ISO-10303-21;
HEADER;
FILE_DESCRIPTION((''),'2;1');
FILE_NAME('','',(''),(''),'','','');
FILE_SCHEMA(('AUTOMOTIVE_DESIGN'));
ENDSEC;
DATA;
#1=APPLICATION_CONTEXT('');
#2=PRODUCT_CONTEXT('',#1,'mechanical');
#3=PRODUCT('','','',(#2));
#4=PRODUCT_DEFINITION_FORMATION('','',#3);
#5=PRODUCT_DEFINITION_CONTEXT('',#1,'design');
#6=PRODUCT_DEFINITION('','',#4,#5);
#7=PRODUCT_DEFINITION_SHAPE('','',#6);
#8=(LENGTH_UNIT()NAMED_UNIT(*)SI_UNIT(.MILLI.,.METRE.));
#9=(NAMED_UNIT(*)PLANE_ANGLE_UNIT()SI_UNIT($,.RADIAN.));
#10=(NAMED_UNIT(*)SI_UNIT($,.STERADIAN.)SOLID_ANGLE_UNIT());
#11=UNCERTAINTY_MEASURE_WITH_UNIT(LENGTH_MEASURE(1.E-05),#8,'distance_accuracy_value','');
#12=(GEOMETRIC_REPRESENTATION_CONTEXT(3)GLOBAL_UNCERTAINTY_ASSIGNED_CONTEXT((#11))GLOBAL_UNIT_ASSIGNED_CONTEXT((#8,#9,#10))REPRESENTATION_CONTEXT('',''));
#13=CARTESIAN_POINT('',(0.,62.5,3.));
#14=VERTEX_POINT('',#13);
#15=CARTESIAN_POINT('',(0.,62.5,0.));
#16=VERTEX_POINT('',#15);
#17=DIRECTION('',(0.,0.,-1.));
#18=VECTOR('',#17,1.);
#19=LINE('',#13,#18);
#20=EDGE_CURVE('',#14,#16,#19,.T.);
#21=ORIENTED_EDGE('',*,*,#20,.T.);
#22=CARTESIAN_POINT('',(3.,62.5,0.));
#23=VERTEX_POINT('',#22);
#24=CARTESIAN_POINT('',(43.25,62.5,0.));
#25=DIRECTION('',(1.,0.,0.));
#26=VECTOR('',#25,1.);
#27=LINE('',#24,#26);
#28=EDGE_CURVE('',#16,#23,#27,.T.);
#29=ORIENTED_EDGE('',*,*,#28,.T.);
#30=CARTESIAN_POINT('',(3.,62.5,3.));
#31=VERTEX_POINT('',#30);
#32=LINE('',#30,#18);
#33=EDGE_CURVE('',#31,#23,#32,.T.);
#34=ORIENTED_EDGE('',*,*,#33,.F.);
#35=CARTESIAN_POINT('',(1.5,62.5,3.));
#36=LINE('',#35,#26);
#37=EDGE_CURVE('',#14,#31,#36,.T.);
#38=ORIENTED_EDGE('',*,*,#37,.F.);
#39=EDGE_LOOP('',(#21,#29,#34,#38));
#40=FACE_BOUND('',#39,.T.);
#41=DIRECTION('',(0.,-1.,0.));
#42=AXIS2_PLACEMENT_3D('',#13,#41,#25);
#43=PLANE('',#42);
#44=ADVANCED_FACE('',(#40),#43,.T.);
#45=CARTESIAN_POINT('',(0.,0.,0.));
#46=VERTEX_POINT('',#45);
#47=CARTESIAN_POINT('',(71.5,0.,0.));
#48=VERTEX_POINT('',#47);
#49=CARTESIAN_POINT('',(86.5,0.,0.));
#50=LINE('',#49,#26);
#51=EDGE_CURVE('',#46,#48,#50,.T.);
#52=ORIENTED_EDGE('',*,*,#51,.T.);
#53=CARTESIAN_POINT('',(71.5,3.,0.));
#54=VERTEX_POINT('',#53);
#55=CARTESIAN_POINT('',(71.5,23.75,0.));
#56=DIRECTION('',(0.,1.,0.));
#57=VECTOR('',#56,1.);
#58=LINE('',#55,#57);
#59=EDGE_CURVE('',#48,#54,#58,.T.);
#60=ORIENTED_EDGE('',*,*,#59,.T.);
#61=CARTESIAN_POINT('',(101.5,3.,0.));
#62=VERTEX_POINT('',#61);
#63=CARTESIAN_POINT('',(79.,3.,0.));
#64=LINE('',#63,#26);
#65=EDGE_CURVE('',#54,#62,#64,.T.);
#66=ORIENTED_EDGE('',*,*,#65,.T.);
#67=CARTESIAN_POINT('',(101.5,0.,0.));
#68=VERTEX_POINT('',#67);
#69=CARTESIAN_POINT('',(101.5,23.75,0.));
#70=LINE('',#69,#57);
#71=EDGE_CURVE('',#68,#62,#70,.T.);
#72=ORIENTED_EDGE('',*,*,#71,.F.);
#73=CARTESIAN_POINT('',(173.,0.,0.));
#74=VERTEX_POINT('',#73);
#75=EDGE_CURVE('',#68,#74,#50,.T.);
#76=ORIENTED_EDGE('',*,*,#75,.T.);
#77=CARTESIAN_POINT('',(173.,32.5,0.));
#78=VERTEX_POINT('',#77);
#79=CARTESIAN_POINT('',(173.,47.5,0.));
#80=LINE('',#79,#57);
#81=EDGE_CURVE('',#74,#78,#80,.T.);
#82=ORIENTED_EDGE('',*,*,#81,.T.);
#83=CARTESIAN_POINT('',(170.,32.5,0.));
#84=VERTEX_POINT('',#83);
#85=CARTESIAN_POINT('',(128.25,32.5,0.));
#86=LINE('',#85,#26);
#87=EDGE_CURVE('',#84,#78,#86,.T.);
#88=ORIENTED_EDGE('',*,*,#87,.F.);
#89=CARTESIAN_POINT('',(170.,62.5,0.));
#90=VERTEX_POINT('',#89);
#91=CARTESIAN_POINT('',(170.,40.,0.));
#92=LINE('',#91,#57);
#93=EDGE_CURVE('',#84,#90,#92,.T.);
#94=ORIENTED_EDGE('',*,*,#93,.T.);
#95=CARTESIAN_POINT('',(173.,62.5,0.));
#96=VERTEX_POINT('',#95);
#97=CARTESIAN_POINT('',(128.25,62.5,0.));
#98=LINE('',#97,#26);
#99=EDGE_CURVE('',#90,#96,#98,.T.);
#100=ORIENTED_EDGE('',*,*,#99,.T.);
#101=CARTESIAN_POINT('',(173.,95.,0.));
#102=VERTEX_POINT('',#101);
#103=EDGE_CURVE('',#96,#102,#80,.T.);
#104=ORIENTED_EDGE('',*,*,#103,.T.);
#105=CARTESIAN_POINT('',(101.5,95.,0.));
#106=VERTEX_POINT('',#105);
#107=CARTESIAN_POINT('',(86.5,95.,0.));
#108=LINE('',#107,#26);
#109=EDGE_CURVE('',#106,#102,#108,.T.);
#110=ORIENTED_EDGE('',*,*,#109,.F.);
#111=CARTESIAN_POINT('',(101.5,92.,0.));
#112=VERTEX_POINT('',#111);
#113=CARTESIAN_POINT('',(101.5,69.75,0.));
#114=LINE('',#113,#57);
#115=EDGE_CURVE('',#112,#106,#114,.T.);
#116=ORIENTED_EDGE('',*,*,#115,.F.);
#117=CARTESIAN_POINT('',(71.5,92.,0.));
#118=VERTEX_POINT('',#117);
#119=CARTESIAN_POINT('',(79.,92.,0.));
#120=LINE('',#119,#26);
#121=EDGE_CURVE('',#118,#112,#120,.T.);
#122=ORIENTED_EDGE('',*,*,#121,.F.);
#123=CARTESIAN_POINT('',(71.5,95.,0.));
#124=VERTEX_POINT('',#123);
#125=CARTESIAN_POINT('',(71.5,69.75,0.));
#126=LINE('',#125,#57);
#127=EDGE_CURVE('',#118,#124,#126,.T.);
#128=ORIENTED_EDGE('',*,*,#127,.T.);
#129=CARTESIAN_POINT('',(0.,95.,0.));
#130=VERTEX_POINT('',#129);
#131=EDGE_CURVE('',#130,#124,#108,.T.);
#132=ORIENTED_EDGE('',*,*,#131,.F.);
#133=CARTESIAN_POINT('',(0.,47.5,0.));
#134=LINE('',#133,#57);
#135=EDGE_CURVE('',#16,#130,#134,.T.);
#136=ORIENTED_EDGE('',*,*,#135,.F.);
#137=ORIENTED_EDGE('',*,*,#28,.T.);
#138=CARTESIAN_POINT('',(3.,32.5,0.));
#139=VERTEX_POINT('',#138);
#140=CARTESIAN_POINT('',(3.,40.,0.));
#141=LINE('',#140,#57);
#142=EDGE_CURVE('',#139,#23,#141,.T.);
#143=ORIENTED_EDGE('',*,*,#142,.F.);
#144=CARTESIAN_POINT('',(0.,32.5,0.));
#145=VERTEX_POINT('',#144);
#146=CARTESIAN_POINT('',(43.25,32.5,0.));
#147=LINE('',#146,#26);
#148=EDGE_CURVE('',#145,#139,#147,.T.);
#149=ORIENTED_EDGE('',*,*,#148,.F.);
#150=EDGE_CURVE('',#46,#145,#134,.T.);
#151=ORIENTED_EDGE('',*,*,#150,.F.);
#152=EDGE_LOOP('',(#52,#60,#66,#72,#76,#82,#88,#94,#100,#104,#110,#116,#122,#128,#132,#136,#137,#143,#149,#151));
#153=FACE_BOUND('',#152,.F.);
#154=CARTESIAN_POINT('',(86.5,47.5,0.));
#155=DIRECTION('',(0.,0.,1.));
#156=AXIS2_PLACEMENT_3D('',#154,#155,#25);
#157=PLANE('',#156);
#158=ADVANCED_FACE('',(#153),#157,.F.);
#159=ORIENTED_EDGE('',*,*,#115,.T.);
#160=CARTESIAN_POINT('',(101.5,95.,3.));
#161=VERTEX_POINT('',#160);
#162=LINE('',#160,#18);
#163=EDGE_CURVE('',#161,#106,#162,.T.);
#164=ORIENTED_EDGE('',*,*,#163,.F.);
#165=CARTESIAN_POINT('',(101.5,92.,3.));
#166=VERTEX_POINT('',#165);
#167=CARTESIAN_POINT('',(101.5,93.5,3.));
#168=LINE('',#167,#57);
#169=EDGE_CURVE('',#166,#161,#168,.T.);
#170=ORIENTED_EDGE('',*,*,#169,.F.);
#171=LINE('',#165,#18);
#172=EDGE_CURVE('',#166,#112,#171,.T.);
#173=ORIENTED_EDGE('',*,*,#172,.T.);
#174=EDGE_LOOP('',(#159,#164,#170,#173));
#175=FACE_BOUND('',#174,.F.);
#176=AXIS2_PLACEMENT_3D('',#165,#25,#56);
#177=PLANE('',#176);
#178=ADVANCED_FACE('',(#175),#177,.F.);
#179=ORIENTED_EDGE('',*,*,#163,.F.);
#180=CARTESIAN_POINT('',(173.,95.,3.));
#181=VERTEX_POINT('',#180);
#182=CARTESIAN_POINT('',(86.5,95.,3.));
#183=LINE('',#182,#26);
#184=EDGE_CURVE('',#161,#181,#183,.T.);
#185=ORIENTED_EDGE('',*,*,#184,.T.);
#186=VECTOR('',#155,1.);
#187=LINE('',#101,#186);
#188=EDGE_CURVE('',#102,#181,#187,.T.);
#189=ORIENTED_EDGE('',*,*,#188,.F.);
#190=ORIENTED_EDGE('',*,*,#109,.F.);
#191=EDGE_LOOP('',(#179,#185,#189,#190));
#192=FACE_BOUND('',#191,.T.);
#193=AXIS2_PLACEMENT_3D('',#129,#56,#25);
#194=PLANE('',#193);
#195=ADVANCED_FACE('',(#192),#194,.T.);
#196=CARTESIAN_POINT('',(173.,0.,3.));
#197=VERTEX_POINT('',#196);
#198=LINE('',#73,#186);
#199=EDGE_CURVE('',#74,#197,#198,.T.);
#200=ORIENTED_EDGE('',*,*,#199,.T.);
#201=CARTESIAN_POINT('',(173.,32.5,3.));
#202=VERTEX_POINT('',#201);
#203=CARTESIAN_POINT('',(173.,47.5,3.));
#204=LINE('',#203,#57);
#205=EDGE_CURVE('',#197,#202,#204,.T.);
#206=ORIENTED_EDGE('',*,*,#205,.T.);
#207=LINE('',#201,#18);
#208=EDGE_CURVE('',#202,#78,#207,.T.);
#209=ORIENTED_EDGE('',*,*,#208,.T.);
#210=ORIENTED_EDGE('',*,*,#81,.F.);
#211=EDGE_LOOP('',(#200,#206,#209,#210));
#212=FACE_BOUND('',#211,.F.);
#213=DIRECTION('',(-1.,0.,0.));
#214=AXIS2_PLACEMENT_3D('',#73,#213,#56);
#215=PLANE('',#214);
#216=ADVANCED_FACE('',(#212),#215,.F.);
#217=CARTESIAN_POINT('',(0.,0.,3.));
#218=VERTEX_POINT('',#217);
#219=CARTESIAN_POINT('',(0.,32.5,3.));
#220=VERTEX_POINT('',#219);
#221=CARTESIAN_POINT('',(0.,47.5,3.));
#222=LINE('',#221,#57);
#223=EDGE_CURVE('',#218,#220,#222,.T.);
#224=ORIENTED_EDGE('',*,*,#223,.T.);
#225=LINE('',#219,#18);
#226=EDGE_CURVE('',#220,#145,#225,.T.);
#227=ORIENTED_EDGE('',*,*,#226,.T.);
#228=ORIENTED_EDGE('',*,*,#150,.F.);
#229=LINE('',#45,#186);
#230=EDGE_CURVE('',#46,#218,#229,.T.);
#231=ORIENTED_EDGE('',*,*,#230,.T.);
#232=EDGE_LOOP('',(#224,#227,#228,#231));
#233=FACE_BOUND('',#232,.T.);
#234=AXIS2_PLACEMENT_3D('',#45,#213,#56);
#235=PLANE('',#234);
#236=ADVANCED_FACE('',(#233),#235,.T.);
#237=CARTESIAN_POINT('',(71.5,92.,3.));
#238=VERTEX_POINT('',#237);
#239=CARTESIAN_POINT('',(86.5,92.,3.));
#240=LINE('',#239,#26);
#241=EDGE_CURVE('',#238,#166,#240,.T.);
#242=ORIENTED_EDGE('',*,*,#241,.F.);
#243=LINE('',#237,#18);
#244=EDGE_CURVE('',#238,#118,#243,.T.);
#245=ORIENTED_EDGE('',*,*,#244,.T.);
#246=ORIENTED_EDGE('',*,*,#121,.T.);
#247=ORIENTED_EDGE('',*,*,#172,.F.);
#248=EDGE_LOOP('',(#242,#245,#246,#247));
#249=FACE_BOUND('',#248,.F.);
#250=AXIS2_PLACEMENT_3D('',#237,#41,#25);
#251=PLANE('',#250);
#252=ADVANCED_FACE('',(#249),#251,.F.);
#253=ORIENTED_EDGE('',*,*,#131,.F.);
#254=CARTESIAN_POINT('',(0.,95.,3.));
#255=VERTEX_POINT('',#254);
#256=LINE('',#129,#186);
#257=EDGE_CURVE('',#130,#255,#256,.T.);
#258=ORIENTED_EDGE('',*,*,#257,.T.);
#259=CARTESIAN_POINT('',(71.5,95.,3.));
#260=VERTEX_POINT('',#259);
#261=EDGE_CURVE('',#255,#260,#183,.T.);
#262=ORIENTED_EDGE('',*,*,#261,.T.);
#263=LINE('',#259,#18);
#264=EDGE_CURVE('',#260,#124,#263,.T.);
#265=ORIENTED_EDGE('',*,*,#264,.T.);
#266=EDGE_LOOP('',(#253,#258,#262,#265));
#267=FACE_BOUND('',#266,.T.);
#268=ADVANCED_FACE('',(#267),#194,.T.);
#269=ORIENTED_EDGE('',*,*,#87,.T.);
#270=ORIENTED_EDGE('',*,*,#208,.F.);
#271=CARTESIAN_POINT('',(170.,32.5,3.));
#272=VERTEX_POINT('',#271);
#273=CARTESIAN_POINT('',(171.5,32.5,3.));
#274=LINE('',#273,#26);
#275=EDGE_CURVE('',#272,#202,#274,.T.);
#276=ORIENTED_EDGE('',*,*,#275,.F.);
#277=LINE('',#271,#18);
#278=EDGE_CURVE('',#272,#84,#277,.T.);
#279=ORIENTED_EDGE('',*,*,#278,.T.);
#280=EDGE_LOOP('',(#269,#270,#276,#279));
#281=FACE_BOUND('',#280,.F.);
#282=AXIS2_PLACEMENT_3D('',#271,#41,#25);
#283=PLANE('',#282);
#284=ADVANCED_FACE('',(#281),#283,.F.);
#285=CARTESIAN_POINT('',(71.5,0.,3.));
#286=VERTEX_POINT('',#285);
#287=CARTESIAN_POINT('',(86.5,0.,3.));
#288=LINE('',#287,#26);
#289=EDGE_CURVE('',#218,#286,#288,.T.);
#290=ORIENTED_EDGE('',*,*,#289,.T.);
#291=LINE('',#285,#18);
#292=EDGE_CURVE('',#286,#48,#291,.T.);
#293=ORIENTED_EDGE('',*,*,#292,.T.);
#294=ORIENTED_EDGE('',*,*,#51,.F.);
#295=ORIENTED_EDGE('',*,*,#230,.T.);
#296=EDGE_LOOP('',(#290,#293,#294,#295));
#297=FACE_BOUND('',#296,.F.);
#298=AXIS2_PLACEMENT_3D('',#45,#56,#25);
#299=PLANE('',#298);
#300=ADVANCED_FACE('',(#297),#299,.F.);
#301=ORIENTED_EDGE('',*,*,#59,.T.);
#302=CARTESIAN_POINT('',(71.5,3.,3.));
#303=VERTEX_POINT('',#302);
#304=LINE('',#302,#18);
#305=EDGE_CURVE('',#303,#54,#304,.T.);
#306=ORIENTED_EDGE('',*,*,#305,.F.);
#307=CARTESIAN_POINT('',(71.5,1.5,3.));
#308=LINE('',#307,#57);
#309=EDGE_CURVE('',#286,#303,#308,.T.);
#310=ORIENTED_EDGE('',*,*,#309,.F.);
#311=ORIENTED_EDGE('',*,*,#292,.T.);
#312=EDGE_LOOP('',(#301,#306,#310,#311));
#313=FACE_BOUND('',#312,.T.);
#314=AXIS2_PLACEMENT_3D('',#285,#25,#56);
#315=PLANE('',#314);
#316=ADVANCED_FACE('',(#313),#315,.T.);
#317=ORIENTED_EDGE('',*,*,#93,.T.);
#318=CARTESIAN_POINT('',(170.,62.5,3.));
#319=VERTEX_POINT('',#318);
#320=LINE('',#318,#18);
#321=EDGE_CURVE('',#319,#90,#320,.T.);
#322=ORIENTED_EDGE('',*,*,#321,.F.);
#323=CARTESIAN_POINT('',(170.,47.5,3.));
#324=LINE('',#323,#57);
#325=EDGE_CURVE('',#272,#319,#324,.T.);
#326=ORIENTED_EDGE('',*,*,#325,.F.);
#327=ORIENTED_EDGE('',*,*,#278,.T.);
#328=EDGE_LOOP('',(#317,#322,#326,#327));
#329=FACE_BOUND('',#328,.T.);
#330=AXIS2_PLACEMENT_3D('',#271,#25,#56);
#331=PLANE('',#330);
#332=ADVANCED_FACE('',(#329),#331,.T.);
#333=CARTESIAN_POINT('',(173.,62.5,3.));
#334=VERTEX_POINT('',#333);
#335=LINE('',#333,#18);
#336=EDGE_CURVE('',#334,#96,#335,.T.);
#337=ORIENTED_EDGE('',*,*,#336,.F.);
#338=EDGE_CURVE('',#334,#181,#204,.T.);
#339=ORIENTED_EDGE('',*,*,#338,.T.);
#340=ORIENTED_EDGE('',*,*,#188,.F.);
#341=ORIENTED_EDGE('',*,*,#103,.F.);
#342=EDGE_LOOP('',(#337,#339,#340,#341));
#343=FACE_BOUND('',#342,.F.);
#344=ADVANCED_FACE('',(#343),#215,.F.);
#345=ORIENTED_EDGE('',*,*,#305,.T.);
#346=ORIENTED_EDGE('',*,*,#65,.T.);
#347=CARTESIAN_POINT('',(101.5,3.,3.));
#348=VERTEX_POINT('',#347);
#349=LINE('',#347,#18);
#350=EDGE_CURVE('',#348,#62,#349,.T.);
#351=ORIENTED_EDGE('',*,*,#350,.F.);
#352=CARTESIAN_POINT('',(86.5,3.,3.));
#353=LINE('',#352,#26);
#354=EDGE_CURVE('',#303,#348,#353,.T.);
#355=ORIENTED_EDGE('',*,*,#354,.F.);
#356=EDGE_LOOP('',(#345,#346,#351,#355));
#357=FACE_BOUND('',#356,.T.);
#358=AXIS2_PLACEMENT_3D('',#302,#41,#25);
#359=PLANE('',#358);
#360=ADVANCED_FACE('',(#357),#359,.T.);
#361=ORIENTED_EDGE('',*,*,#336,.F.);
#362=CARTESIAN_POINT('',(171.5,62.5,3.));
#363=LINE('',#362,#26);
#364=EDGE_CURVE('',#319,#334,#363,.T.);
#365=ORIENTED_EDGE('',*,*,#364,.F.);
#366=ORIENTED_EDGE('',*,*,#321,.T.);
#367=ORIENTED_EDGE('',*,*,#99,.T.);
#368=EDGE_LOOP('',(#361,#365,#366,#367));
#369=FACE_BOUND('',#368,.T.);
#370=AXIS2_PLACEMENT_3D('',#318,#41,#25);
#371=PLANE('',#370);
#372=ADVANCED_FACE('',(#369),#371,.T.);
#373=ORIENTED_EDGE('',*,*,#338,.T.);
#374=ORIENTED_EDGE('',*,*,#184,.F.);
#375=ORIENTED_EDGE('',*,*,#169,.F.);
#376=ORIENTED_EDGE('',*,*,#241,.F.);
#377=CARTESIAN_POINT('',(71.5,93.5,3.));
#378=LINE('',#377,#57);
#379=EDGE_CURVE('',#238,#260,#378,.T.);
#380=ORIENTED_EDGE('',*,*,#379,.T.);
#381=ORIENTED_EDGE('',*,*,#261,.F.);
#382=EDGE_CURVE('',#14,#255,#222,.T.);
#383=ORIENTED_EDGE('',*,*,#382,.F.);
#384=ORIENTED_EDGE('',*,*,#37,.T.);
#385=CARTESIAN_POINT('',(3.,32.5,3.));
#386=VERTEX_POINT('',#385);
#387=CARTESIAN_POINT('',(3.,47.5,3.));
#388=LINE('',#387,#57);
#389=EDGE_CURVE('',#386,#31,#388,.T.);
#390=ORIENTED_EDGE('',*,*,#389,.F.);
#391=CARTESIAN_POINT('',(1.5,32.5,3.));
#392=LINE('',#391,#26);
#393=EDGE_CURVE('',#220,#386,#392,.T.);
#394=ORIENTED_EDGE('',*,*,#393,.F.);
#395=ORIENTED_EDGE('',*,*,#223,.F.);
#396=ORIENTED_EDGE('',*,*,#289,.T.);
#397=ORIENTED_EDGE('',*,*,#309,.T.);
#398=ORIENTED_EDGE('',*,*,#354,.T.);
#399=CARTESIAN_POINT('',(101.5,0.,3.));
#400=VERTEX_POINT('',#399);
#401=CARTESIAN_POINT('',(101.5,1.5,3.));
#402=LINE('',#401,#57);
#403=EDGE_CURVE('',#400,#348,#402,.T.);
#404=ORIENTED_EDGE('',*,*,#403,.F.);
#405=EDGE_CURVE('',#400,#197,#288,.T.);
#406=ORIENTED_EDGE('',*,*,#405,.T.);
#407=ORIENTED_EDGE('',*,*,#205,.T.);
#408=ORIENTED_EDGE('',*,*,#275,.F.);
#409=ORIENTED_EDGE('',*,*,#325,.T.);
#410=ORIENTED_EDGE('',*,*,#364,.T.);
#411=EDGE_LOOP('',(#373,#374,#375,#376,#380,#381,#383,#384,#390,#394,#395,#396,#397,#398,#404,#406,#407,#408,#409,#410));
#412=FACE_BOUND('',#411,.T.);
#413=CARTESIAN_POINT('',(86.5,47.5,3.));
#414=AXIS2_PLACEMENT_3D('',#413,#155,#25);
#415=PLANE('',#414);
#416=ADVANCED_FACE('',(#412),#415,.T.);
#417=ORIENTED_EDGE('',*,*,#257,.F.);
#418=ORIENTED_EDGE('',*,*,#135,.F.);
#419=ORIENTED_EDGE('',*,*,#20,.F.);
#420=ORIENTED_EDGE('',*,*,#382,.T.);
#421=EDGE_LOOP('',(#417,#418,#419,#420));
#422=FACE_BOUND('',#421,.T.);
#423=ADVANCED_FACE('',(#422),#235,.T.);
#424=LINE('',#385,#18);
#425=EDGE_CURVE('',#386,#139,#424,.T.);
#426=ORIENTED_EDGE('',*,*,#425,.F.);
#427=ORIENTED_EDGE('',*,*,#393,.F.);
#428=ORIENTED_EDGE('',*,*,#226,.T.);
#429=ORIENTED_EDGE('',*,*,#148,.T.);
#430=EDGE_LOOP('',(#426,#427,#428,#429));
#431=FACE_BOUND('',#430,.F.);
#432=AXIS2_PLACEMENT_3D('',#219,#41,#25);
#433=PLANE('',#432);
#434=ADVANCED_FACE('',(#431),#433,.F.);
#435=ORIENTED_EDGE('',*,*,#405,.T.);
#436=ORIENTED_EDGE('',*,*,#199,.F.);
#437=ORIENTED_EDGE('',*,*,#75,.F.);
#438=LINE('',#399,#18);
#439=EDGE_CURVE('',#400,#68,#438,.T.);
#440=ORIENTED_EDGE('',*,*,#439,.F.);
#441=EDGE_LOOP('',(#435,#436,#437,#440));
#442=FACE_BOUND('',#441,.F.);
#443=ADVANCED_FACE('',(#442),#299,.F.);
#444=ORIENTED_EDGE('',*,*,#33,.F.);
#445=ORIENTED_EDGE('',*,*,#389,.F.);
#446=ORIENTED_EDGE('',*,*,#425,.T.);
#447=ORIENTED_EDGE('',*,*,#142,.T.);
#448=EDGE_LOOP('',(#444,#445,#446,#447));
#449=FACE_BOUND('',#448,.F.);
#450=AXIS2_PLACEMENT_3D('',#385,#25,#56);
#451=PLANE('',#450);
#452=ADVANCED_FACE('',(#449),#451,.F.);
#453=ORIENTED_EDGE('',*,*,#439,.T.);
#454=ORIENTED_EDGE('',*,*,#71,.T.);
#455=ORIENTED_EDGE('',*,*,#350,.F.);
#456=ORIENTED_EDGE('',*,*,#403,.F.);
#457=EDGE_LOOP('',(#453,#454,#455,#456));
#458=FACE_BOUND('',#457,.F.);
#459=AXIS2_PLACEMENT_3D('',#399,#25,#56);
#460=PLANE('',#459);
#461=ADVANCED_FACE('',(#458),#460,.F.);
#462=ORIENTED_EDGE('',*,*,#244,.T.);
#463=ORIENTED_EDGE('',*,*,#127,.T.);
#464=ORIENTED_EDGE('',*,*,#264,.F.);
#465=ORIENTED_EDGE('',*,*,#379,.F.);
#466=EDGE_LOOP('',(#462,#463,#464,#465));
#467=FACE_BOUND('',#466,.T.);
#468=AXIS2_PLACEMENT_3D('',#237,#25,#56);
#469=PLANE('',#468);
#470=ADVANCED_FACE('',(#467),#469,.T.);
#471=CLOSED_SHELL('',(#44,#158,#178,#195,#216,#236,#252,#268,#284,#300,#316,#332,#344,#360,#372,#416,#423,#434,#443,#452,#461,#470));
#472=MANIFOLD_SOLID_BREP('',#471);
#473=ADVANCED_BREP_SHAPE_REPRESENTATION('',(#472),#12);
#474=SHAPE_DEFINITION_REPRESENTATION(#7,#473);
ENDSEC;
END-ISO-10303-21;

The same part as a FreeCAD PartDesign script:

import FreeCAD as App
import Part
import Sketcher
Q = App.Units.Quantity


def add_polygon(sketch, points):
    """Adds a closed chain of lines whose ends are joined by coincident constraints."""
    first, n = sketch.GeometryCount, len(points)
    for a, b in zip(points, points[1:] + points[:1]):
        sketch.addGeometry(Part.LineSegment(App.Vector(*a, 0), App.Vector(*b, 0)), False)
    for i in range(n):
        sketch.addConstraint(Sketcher.Constraint("Coincident", first + i, 2, first + (i + 1) % n, 1))

doc = App.newDocument("Part")
params = doc.addObject("Spreadsheet::Sheet", "Params")
for row, (alias, value) in enumerate([
    ("sketch1_width", "173 mm"),
    ("sketch1_height", "95 mm"),
    ("pad1_length", "3 mm"),
    ("sketch2_width", "30 mm"),
    ("sketch2_width2", "3 mm"),
    ("pocket1_length", "25 mm"),
], start=1):
    params.set(f"A{row}", alias)
    params.set(f"B{row}", "=" + value)
    params.setAlias(f"B{row}", alias)

body = doc.addObject("PartDesign::Body", "Body")

sketch1 = doc.addObject("Sketcher::SketchObject", "Sketch")
body.addObject(sketch1)
sketch1.AttachmentSupport = (doc.XY_Plane, [""])
sketch1.MapMode = "FlatFace"
add_polygon(sketch1, [(0, 95), (0, 0), (173, 0), (173, 95)])
sketch1.addConstraint(Sketcher.Constraint("Vertical", 0))
sketch1.addConstraint(Sketcher.Constraint("Horizontal", 1))
sketch1.addConstraint(Sketcher.Constraint("Vertical", 2))
sketch1.addConstraint(Sketcher.Constraint("Horizontal", 3))
sketch1.addConstraint(Sketcher.Constraint("Coincident", 0, 2, -1, 1))
sketch1.addConstraint(Sketcher.Constraint("DistanceX", 1, 1, 1, 2, Q("173 mm")))
sketch1.addConstraint(Sketcher.Constraint("DistanceY", 0, 2, 0, 1, Q("95 mm")))
sketch1.setExpression("Constraints[9]", "Params.sketch1_width")
sketch1.setExpression("Constraints[10]", "Params.sketch1_height")
pad1 = doc.addObject("PartDesign::Pad", "Pad")
body.addObject(pad1)
pad1.Profile = sketch1
pad1.setExpression("Length", "Params.pad1_length")

sketch2 = doc.addObject("Sketcher::SketchObject", "Sketch001")
body.addObject(sketch2)
sketch2.AttachmentSupport = (doc.XY_Plane, [""])
sketch2.MapMode = "FlatFace"
sketch2.AttachmentOffset = App.Placement(App.Vector(0, 0, 3), App.Rotation())
add_polygon(sketch2, [(71.5, 3), (71.5, 0), (101.5, 0), (101.5, 3)])
add_polygon(sketch2, [(71.5, 95), (71.5, 92), (101.5, 92), (101.5, 95)])
add_polygon(sketch2, [(0, 62.5), (0, 32.5), (3, 32.5), (3, 62.5)])
add_polygon(sketch2, [(170, 62.5), (170, 32.5), (173, 32.5), (173, 62.5)])
sketch2.addConstraint(Sketcher.Constraint("Vertical", 0))
sketch2.addConstraint(Sketcher.Constraint("Horizontal", 1))
sketch2.addConstraint(Sketcher.Constraint("Vertical", 2))
sketch2.addConstraint(Sketcher.Constraint("Horizontal", 3))
sketch2.addConstraint(Sketcher.Constraint("Vertical", 4))
sketch2.addConstraint(Sketcher.Constraint("Horizontal", 5))
sketch2.addConstraint(Sketcher.Constraint("Vertical", 6))
sketch2.addConstraint(Sketcher.Constraint("Horizontal", 7))
sketch2.addConstraint(Sketcher.Constraint("Vertical", 8))
sketch2.addConstraint(Sketcher.Constraint("Horizontal", 9))
sketch2.addConstraint(Sketcher.Constraint("Vertical", 10))
sketch2.addConstraint(Sketcher.Constraint("Horizontal", 11))
sketch2.addConstraint(Sketcher.Constraint("Vertical", 12))
sketch2.addConstraint(Sketcher.Constraint("Horizontal", 13))
sketch2.addConstraint(Sketcher.Constraint("Vertical", 14))
sketch2.addConstraint(Sketcher.Constraint("Horizontal", 15))
sketch2.addConstraint(Sketcher.Constraint("PointOnObject", 0, 2, -1))
sketch2.addConstraint(Sketcher.Constraint("PointOnObject", 8, 2, -2))
sketch2.addConstraint(Sketcher.Constraint("Horizontal", 9, 2, 12, 2))
sketch2.addConstraint(Sketcher.Constraint("Horizontal", 11, 2, 14, 2))
sketch2.addConstraint(Sketcher.Constraint("Vertical", 3, 2, 4, 2))
sketch2.addConstraint(Sketcher.Constraint("Vertical", 2, 2, 5, 2))
sketch2.addConstraint(Sketcher.Constraint("Equal", 11, 13))
sketch2.addConstraint(Sketcher.Constraint("Equal", 15, 0))
sketch2.addConstraint(Sketcher.Constraint("Equal", 2, 4))
sketch2.addConstraint(Sketcher.Constraint("Equal", 7, 8))
sketch2.addConstraint(Sketcher.Constraint("DistanceX", 1, 1, 1, 2, Q("30 mm")))
sketch2.addConstraint(Sketcher.Constraint("DistanceX", 9, 1, 9, 2, Q("3 mm")))
sketch2.addConstraint(Sketcher.Constraint("DistanceY", -1, 1, 4, 2, Q("92 mm")))
sketch2.addConstraint(Sketcher.Constraint("DistanceX", -1, 1, 12, 2, Q("170 mm")))
sketch2.addConstraint(Sketcher.Constraint("DistanceX", -1, 1, 0, 2, Q("71.5 mm")))
sketch2.addConstraint(Sketcher.Constraint("DistanceY", -1, 1, 8, 2, Q("32.5 mm")))
sketch2.setExpression("Constraints[42]", "Params.sketch2_width")
sketch2.setExpression("Constraints[43]", "Params.sketch2_width2")
pocket1 = doc.addObject("PartDesign::Pocket", "Pocket")
body.addObject(pocket1)
pocket1.Profile = sketch2
pocket1.setExpression("Length", "Params.pocket1_length")

doc.recompute()
